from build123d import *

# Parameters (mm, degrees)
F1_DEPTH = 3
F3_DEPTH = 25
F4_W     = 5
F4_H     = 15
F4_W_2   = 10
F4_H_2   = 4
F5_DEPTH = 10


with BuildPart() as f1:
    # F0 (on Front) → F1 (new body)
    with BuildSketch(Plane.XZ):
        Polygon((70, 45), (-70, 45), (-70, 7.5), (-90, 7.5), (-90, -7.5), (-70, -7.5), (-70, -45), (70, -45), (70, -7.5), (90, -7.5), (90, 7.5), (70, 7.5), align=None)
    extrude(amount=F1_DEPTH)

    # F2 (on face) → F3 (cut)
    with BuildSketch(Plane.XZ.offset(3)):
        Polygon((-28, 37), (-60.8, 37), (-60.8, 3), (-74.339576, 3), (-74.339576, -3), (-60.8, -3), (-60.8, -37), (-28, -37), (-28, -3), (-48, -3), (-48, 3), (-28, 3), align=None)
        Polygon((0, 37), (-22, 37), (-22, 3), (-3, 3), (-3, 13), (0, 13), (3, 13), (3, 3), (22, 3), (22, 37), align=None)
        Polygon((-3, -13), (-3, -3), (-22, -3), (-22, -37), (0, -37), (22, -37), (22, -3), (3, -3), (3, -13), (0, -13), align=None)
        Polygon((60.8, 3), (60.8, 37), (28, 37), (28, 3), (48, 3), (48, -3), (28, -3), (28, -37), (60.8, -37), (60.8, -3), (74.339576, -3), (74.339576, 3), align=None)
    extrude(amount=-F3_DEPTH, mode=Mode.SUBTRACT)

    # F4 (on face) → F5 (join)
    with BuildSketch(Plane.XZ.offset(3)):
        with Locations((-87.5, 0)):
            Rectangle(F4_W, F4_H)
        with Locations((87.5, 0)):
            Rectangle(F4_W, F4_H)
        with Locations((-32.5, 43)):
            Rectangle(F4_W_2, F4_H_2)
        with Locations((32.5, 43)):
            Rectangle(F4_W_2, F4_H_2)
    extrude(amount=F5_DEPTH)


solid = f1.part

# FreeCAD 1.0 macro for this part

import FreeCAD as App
import Part
import Sketcher
from FreeCAD import Vector
Q = App.Units.Quantity


def add_polygon(sketch, points):
    """Adds a closed chain of lines whose ends are joined by coincident constraints."""
    first, n = sketch.GeometryCount, len(points)
    for a, b in zip(points, points[1:] + points[:1]):
        sketch.addGeometry(Part.LineSegment(App.Vector(*a, 0), App.Vector(*b, 0)), False)
    for i in range(n):
        sketch.addConstraint(Sketcher.Constraint("Coincident", first + i, 2, first + (i + 1) % n, 1))

doc = App.newDocument("Part")
body = doc.addObject("PartDesign::Body", "Body")

sketch1 = body.newObject("Sketcher::SketchObject", "Sketch")
sketch1.AttachmentSupport = (doc.getObject("XZ_Plane"), [""])
sketch1.MapMode = "FlatFace"
add_polygon(sketch1, [(70, 45), (-70, 45), (-70, 8), (-90, 8), (-90, -8), (-70, -8), (-70, -45), (70, -45), (70, -8), (90, -8), (90, 8), (70, 8)])
sketch1.addConstraint([
    Sketcher.Constraint("Horizontal", 0),
    Sketcher.Constraint("Vertical", 1),
    Sketcher.Constraint("Horizontal", 2),
    Sketcher.Constraint("Vertical", 3),
    Sketcher.Constraint("Horizontal", 4),
    Sketcher.Constraint("Vertical", 5),
    Sketcher.Constraint("Horizontal", 6),
    Sketcher.Constraint("Vertical", 7),
    Sketcher.Constraint("Horizontal", 8),
    Sketcher.Constraint("Vertical", 9),
    Sketcher.Constraint("Horizontal", 10),
    Sketcher.Constraint("Vertical", 11),
    Sketcher.Constraint("Symmetric", 0, 2, 6, 2, -1, 1),
    Sketcher.Constraint("Symmetric", 2, 2, 8, 2, -1, 1),
    Sketcher.Constraint("Symmetric", 4, 2, 10, 2, -1, 1),
    Sketcher.Constraint("Symmetric", 4, 2, 7, 2, -2),
    Sketcher.Constraint("DistanceX", 0, 2, 0, 1, Q("140 mm")),
    Sketcher.Constraint("DistanceX", 2, 2, 2, 1, Q("20 mm")),
    Sketcher.Constraint("DistanceY", 3, 2, 3, 1, Q("15 mm")),
    Sketcher.Constraint("DistanceY", 1, 2, 1, 1, Q("37.5 mm")),
])
pad1 = body.newObject("PartDesign::Pad", "Pad")
pad1.Profile = sketch1
pad1.Length = 3

sketch2 = body.newObject("Sketcher::SketchObject", "Sketch001")
sketch2.AttachmentSupport = (doc.getObject("XZ_Plane"), [""])
sketch2.MapMode = "FlatFace"
sketch2.AttachmentOffset = App.Placement(Vector(0, 0, 3), App.Rotation())
add_polygon(sketch2, [(-28, 37), (-61, 37), (-61, 3), (-74, 3), (-74, -3), (-61, -3), (-61, -37), (-28, -37), (-28, -3), (-48, -3), (-48, 3), (-28, 3)])
add_polygon(sketch2, [(-22, 37), (-22, 3), (-3, 3), (-3, 13), (3, 13), (3, 3), (22, 3), (22, 37)])
add_polygon(sketch2, [(-3, -13), (-3, -3), (-22, -3), (-22, -37), (22, -37), (22, -3), (3, -3), (3, -13)])
add_polygon(sketch2, [(61, 3), (61, 37), (28, 37), (28, 3), (48, 3), (48, -3), (28, -3), (28, -37), (61, -37), (61, -3), (74, -3), (74, 3)])
sketch2.addConstraint([
    Sketcher.Constraint("Horizontal", 0),
    Sketcher.Constraint("Vertical", 1),
    Sketcher.Constraint("Horizontal", 2),
    Sketcher.Constraint("Vertical", 3),
    Sketcher.Constraint("Horizontal", 4),
    Sketcher.Constraint("Vertical", 5),
    Sketcher.Constraint("Horizontal", 6),
    Sketcher.Constraint("Vertical", 7),
    Sketcher.Constraint("Horizontal", 8),
    Sketcher.Constraint("Vertical", 9),
    Sketcher.Constraint("Horizontal", 10),
    Sketcher.Constraint("Vertical", 11),
    Sketcher.Constraint("Vertical", 12),
    Sketcher.Constraint("Horizontal", 13),
    Sketcher.Constraint("Vertical", 14),
    Sketcher.Constraint("Horizontal", 15),
    Sketcher.Constraint("Vertical", 16),
    Sketcher.Constraint("Horizontal", 17),
    Sketcher.Constraint("Vertical", 18),
    Sketcher.Constraint("Horizontal", 19),
    Sketcher.Constraint("Vertical", 20),
    Sketcher.Constraint("Horizontal", 21),
    Sketcher.Constraint("Vertical", 22),
    Sketcher.Constraint("Horizontal", 23),
    Sketcher.Constraint("Vertical", 24),
    Sketcher.Constraint("Horizontal", 25),
    Sketcher.Constraint("Vertical", 26),
    Sketcher.Constraint("Horizontal", 27),
    Sketcher.Constraint("Vertical", 28),
    Sketcher.Constraint("Horizontal", 29),
    Sketcher.Constraint("Vertical", 30),
    Sketcher.Constraint("Horizontal", 31),
    Sketcher.Constraint("Vertical", 32),
    Sketcher.Constraint("Horizontal", 33),
    Sketcher.Constraint("Vertical", 34),
    Sketcher.Constraint("Horizontal", 35),
    Sketcher.Constraint("Vertical", 36),
    Sketcher.Constraint("Horizontal", 37),
    Sketcher.Constraint("Vertical", 38),
    Sketcher.Constraint("Horizontal", 39),
    Sketcher.Constraint("Symmetric", 16, 2, 20, 2, -1, 1),
    Sketcher.Constraint("Symmetric", 18, 2, 22, 2, -1, 1),
    Sketcher.Constraint("Symmetric", 12, 2, 24, 2, -1, 1),
    Sketcher.Constraint("Symmetric", 14, 2, 26, 2, -1, 1),
    Sketcher.Constraint("Symmetric", 5, 2, 28, 2, -1, 1),
    Sketcher.Constraint("Symmetric", 7, 2, 30, 2, -1, 1),
    Sketcher.Constraint("Symmetric", 9, 2, 32, 2, -1, 1),
    Sketcher.Constraint("Symmetric", 11, 2, 34, 2, -1, 1),
    Sketcher.Constraint("Symmetric", 1, 2, 36, 2, -1, 1),
    Sketcher.Constraint("Symmetric", 3, 2, 38, 2, -1, 1),
    Sketcher.Constraint("Symmetric", 13, 2, 16, 2, -2),
    Sketcher.Constraint("Symmetric", 0, 2, 28, 2, -2),
    Sketcher.Constraint("Symmetric", 10, 2, 30, 2, -2),
    Sketcher.Constraint("Horizontal", 4, 2, 7, 2),
    Sketcher.Constraint("Horizontal", 2, 2, 9, 2),
    Sketcher.Constraint("Horizontal", 10, 2, 12, 2),
    Sketcher.Constraint("Horizontal", 11, 2, 18, 2),
    Sketcher.Constraint("Vertical", 19, 2, 21, 2),
    Sketcher.Constraint("Equal", 27, 3),
    Sketcher.Constraint("DistanceX", 8, 2, 8, 1, Q("20 mm")),
    Sketcher.Constraint("DistanceX", 13, 1, 13, 2, Q("19 mm")),
    Sketcher.Constraint("DistanceX", 15, 1, 15, 2, Q("6 mm")),
    Sketcher.Constraint("DistanceY", 1, 2, 1, 1, Q("34 mm")),
    Sketcher.Constraint("DistanceY", 14, 1, 14, 2, Q("10 mm")),
    Sketcher.Constraint("DistanceX", 0, 2, 0, 1, Q("32.8 mm")),
    Sketcher.Constraint("DistanceX", 6, 2, -1, 1, Q("28 mm")),
    Sketcher.Constraint("DistanceX", 2, 2, 2, 1, Q("13.539576 mm")),
])
pocket1 = body.newObject("PartDesign::Pocket", "Pocket")
pocket1.Profile = sketch2
pocket1.Length = 25

sketch3 = body.newObject("Sketcher::SketchObject", "Sketch002")
sketch3.AttachmentSupport = (doc.getObject("XZ_Plane"), [""])
sketch3.MapMode = "FlatFace"
sketch3.AttachmentOffset = App.Placement(Vector(0, 0, 3), App.Rotation())
add_polygon(sketch3, [(-90, 7.5), (-90, -7.5), (-85, -7.5), (-85, 7.5)])
add_polygon(sketch3, [(85, 7.5), (85, -7.5), (90, -7.5), (90, 7.5)])
add_polygon(sketch3, [(-37.5, 45), (-37.5, 41), (-27.5, 41), (-27.5, 45)])
add_polygon(sketch3, [(27.5, 45), (27.5, 41), (37.5, 41), (37.5, 45)])
sketch3.addConstraint([
    Sketcher.Constraint("Vertical", 0),
    Sketcher.Constraint("Horizontal", 1),
    Sketcher.Constraint("Vertical", 2),
    Sketcher.Constraint("Horizontal", 3),
    Sketcher.Constraint("Vertical", 4),
    Sketcher.Constraint("Horizontal", 5),
    Sketcher.Constraint("Vertical", 6),
    Sketcher.Constraint("Horizontal", 7),
    Sketcher.Constraint("Vertical", 8),
    Sketcher.Constraint("Horizontal", 9),
    Sketcher.Constraint("Vertical", 10),
    Sketcher.Constraint("Horizontal", 11),
    Sketcher.Constraint("Vertical", 12),
    Sketcher.Constraint("Horizontal", 13),
    Sketcher.Constraint("Vertical", 14),
    Sketcher.Constraint("Horizontal", 15),
    Sketcher.Constraint("Symmetric", 2, 2, 4, 2, -1, 1),
    Sketcher.Constraint("Symmetric", 0, 2, 6, 2, -1, 1),
    Sketcher.Constraint("Symmetric", 9, 2, 12, 2, -2),
    Sketcher.Constraint("Symmetric", 11, 2, 14, 2, -2),
    Sketcher.Constraint("Horizontal", 1, 2, 4, 2),
    Sketcher.Constraint("DistanceX", 1, 1, 1, 2, Q("5 mm")),
    Sketcher.Constraint("DistanceX", 9, 1, 9, 2, Q("10 mm")),
    Sketcher.Constraint("DistanceY", 0, 2, 0, 1, Q("15 mm")),
    Sketcher.Constraint("DistanceY", 8, 2, 8, 1, Q("4 mm")),
    Sketcher.Constraint("DistanceX", 0, 2, -1, 1, Q("90 mm")),
    Sketcher.Constraint("DistanceY", -1, 1, 8, 2, Q("41 mm")),
    Sketcher.Constraint("DistanceX", 9, 2, 12, 2, Q("55 mm")),
])
pad2 = body.newObject("PartDesign::Pad", "Pad001")
pad2.Profile = sketch3
pad2.Length = 10

doc.recompute()
